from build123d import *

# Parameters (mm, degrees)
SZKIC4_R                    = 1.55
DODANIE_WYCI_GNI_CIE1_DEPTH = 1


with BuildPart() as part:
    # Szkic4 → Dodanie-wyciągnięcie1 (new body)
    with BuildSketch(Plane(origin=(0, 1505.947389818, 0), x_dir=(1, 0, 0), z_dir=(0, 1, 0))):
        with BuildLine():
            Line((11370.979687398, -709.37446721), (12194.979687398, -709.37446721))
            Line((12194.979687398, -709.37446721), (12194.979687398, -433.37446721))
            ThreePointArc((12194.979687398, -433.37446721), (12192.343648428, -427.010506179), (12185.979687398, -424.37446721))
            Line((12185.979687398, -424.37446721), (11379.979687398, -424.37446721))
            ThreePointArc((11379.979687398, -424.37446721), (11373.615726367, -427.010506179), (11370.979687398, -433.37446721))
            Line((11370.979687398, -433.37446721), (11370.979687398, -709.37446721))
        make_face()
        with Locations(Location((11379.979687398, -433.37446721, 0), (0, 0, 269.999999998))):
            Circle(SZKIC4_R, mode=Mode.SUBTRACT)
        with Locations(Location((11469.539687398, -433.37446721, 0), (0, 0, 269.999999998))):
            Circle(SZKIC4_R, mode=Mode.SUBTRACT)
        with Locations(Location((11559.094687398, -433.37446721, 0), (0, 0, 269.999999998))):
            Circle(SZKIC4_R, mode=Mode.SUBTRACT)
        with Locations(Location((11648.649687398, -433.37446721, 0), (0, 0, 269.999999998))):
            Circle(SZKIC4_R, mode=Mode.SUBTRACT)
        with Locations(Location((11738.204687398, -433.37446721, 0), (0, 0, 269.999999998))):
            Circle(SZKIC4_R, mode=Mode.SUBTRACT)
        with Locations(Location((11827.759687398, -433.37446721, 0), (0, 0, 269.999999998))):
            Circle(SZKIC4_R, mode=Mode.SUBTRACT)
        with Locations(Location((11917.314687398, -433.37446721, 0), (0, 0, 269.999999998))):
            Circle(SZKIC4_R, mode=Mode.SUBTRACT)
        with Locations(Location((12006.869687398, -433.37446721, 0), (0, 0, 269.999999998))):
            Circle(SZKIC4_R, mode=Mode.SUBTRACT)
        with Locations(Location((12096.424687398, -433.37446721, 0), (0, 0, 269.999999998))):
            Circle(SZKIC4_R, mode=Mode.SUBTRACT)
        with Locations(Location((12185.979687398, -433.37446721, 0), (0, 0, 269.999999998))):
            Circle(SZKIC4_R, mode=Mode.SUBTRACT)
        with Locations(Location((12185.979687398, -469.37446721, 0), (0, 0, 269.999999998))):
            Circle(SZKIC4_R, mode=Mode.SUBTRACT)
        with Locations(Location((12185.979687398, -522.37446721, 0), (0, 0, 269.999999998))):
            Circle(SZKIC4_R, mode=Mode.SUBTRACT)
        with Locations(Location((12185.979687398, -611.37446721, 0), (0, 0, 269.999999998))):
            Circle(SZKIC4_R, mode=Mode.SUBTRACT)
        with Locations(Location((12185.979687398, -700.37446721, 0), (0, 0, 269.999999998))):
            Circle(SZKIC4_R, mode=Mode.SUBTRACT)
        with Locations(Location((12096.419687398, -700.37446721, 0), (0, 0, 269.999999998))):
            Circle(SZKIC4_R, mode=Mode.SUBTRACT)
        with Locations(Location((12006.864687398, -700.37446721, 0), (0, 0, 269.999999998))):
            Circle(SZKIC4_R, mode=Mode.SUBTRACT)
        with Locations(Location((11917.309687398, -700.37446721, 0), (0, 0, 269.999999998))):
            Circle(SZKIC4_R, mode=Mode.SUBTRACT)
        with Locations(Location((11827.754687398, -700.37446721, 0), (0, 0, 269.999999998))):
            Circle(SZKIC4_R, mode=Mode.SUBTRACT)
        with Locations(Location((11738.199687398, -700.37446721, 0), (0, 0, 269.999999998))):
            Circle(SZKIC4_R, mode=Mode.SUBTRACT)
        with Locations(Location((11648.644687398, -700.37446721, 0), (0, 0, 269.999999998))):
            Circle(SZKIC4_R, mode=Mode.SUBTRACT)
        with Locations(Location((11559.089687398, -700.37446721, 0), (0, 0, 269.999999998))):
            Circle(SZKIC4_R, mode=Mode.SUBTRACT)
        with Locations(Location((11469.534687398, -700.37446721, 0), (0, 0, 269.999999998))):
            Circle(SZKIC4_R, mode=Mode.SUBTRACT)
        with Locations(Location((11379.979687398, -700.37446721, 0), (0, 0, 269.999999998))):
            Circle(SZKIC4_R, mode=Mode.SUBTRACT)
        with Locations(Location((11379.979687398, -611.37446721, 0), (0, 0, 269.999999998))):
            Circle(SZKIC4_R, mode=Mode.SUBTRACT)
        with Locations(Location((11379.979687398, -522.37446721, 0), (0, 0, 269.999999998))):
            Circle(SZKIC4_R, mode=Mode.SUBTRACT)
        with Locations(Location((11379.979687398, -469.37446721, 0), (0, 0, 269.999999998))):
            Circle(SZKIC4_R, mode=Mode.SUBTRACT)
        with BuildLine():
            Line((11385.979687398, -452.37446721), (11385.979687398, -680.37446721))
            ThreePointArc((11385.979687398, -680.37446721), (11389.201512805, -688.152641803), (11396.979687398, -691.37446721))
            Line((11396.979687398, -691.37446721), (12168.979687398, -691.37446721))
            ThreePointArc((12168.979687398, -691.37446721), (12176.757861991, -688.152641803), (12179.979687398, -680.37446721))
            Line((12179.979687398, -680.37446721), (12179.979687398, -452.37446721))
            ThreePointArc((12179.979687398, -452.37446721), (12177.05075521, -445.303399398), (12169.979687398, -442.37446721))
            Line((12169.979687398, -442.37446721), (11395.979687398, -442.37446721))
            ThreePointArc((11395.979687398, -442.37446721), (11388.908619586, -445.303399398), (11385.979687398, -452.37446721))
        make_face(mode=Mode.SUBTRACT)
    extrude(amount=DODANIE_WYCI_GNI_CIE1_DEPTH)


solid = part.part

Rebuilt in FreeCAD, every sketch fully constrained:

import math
import FreeCAD as App
import Part
import Sketcher

V = App.Vector

doc = App.newDocument("Part")
body = doc.addObject("PartDesign::Body", "Body")

sketch1 = body.newObject("Sketcher::SketchObject", "Sketch")
sketch1.AttachmentSupport = (doc.getObject("XZ_Plane"), [""])
sketch1.MapMode = "FlatFace"
sketch1.AttachmentOffset = App.Placement(V(0, 0, -1505.94739), App.Rotation())
sketch1.addGeometry([
    Part.LineSegment(V(11371, 709.4, 0), V(12195, 709.4, 0)),
    Part.LineSegment(V(12195, 709.4, 0), V(12195, 433.4, 0)),
    Part.ArcOfCircle(Part.Circle(V(12186, 433.4, 0), V(0, 0, 1), 9), math.radians(-90), math.radians(0)),
    Part.LineSegment(V(12186, 424.4, 0), V(11380, 424.4, 0)),
    Part.ArcOfCircle(Part.Circle(V(11380, 433.4, 0), V(0, 0, 1), 9), math.radians(180), math.radians(270)),
    Part.LineSegment(V(11371, 433.4, 0), V(11371, 709.4, 0)),
    Part.Circle(V(11380, 700.4, 0), V(0, 0, 1), 1.6),
    Part.Circle(V(11469.5, 700.4, 0), V(0, 0, 1), 1.6),
    Part.Circle(V(11559.1, 700.4, 0), V(0, 0, 1), 1.6),
    Part.Circle(V(11648.6, 700.4, 0), V(0, 0, 1), 1.6),
    Part.Circle(V(11738.2, 700.4, 0), V(0, 0, 1), 1.6),
    Part.Circle(V(11380, 611.4, 0), V(0, 0, 1), 1.6),
    Part.Circle(V(11827.8, 700.4, 0), V(0, 0, 1), 1.6),
    Part.Circle(V(11917.3, 700.4, 0), V(0, 0, 1), 1.6),
    Part.Circle(V(12006.9, 700.4, 0), V(0, 0, 1), 1.6),
    Part.Circle(V(12096.4, 700.4, 0), V(0, 0, 1), 1.6),
    Part.Circle(V(12186, 700.4, 0), V(0, 0, 1), 1.6),
    Part.Circle(V(12186, 611.4, 0), V(0, 0, 1), 1.6),
    Part.Circle(V(11380, 522.4, 0), V(0, 0, 1), 1.6),
    Part.Circle(V(11380, 469.4, 0), V(0, 0, 1), 1.6),
    Part.Circle(V(11380, 433.4, 0), V(0, 0, 1), 1.6),
    Part.Circle(V(11469.5, 433.4, 0), V(0, 0, 1), 1.6),
    Part.Circle(V(11559.1, 433.4, 0), V(0, 0, 1), 1.6),
    Part.Circle(V(11648.6, 433.4, 0), V(0, 0, 1), 1.6),
    Part.Circle(V(11738.2, 433.4, 0), V(0, 0, 1), 1.6),
    Part.LineSegment(V(11386, 680.4, 0), V(11386, 452.4, 0)),
    Part.ArcOfCircle(Part.Circle(V(11396, 452.4, 0), V(0, 0, 1), 10), math.radians(180), math.radians(270)),
    Part.LineSegment(V(11396, 442.4, 0), V(12170, 442.4, 0)),
    Part.ArcOfCircle(Part.Circle(V(12170, 452.4, 0), V(0, 0, 1), 10), math.radians(-90), math.radians(0)),
    Part.LineSegment(V(12180, 452.4, 0), V(12180, 680.4, 0)),
    Part.ArcOfCircle(Part.Circle(V(12169, 680.4, 0), V(0, 0, 1), 11), math.radians(0), math.radians(90)),
    Part.LineSegment(V(12169, 691.4, 0), V(11397, 691.4, 0)),
    Part.ArcOfCircle(Part.Circle(V(11397, 680.4, 0), V(0, 0, 1), 11), math.radians(90), math.radians(180)),
    Part.Circle(V(12186, 522.4, 0), V(0, 0, 1), 1.6),
    Part.Circle(V(11827.8, 433.4, 0), V(0, 0, 1), 1.6),
    Part.Circle(V(11917.3, 433.4, 0), V(0, 0, 1), 1.6),
    Part.Circle(V(12186, 469.4, 0), V(0, 0, 1), 1.6),
    Part.Circle(V(12006.9, 433.4, 0), V(0, 0, 1), 1.6),
    Part.Circle(V(12096.4, 433.4, 0), V(0, 0, 1), 1.6),
    Part.Circle(V(12186, 433.4, 0), V(0, 0, 1), 1.6),
], False)
sketch1.addConstraint([
    Sketcher.Constraint("Coincident", 0, 2, 1, 1),
    Sketcher.Constraint("Tangent", 1, 2, 2, 2),
    Sketcher.Constraint("Tangent", 2, 1, 3, 1),
    Sketcher.Constraint("Tangent", 3, 2, 4, 2),
    Sketcher.Constraint("Tangent", 4, 1, 5, 1),
    Sketcher.Constraint("Coincident", 5, 2, 0, 1),
    Sketcher.Constraint("Tangent", 25, 2, 26, 1),
    Sketcher.Constraint("Tangent", 26, 2, 27, 1),
    Sketcher.Constraint("Tangent", 27, 2, 28, 1),
    Sketcher.Constraint("Tangent", 28, 2, 29, 1),
    Sketcher.Constraint("Tangent", 29, 2, 30, 1),
    Sketcher.Constraint("Tangent", 30, 2, 31, 1),
    Sketcher.Constraint("Tangent", 31, 2, 32, 1),
    Sketcher.Constraint("Tangent", 32, 2, 25, 1),
    Sketcher.Constraint("Horizontal", 0),
    Sketcher.Constraint("Vertical", 1),
    Sketcher.Constraint("Horizontal", 3),
    Sketcher.Constraint("Vertical", 5),
    Sketcher.Constraint("Vertical", 25),
    Sketcher.Constraint("Horizontal", 27),
    Sketcher.Constraint("Vertical", 29),
    Sketcher.Constraint("Horizontal", 31),
    Sketcher.Constraint("Coincident", 20, 3, 4, 3),
    Sketcher.Constraint("Coincident", 39, 3, 2, 3),
    Sketcher.Constraint("Equal", 2, 4),
    Sketcher.Constraint("Equal", 6, 7),
    Sketcher.Constraint("Equal", 7, 8),
    Sketcher.Constraint("Equal", 8, 9),
    Sketcher.Constraint("Equal", 9, 10),
    Sketcher.Constraint("Equal", 10, 11),
    Sketcher.Constraint("Equal", 11, 12),
    Sketcher.Constraint("Equal", 12, 13),
    Sketcher.Constraint("Equal", 13, 14),
    Sketcher.Constraint("Equal", 14, 15),
    Sketcher.Constraint("Equal", 15, 16),
    Sketcher.Constraint("Equal", 16, 17),
    Sketcher.Constraint("Equal", 17, 18),
    Sketcher.Constraint("Equal", 18, 19),
    Sketcher.Constraint("Equal", 19, 20),
    Sketcher.Constraint("Equal", 20, 21),
    Sketcher.Constraint("Equal", 21, 22),
    Sketcher.Constraint("Equal", 22, 23),
    Sketcher.Constraint("Equal", 23, 24),
    Sketcher.Constraint("Equal", 26, 28),
    Sketcher.Constraint("Equal", 30, 32),
    Sketcher.Constraint("Equal", 24, 33),
    Sketcher.Constraint("Equal", 33, 34),
    Sketcher.Constraint("Equal", 34, 35),
    Sketcher.Constraint("Equal", 35, 36),
    Sketcher.Constraint("Equal", 36, 37),
    Sketcher.Constraint("Equal", 37, 38),
    Sketcher.Constraint("Equal", 38, 39),
    Sketcher.Constraint("Horizontal", 6, 3, 7, 3),
    Sketcher.Constraint("Horizontal", 7, 3, 8, 3),
    Sketcher.Constraint("Horizontal", 8, 3, 9, 3),
    Sketcher.Constraint("Horizontal", 9, 3, 10, 3),
    Sketcher.Constraint("Horizontal", 10, 3, 12, 3),
    Sketcher.Constraint("Horizontal", 12, 3, 13, 3),
    Sketcher.Constraint("Horizontal", 13, 3, 14, 3),
    Sketcher.Constraint("Horizontal", 14, 3, 15, 3),
    Sketcher.Constraint("Horizontal", 15, 3, 16, 3),
    Sketcher.Constraint("Horizontal", 11, 3, 17, 3),
    Sketcher.Constraint("Horizontal", 20, 3, 21, 3),
    Sketcher.Constraint("Horizontal", 21, 3, 22, 3),
    Sketcher.Constraint("Horizontal", 22, 3, 23, 3),
    Sketcher.Constraint("Horizontal", 23, 3, 24, 3),
    Sketcher.Constraint("Horizontal", 18, 3, 33, 3),
    Sketcher.Constraint("Horizontal", 24, 3, 34, 3),
    Sketcher.Constraint("Horizontal", 34, 3, 35, 3),
    Sketcher.Constraint("Horizontal", 19, 3, 36, 3),
    Sketcher.Constraint("Horizontal", 35, 3, 37, 3),
    Sketcher.Constraint("Horizontal", 37, 3, 38, 3),
    Sketcher.Constraint("Vertical", 4, 3, 6, 3),
    Sketcher.Constraint("Vertical", 6, 3, 11, 3),
    Sketcher.Constraint("Vertical", 2, 3, 16, 3),
    Sketcher.Constraint("Vertical", 16, 3, 17, 3),
    Sketcher.Constraint("Vertical", 11, 3, 18, 3),
    Sketcher.Constraint("Vertical", 18, 3, 19, 3),
    Sketcher.Constraint("Vertical", 17, 3, 33, 3),
    Sketcher.Constraint("Vertical", 33, 3, 36, 3),
    Sketcher.Constraint("Radius", 2, 9.0),
    Sketcher.Constraint("Radius", 26, 10.0),
    Sketcher.Constraint("Radius", 30, 11.0),
    Sketcher.Constraint("Diameter", 6, 3.1),
    Sketcher.Constraint("DistanceX", 0, 1, 0, 2, 824.0),
    Sketcher.Constraint("DistanceX", 27, 1, 27, 2, 774.0),
    Sketcher.Constraint("DistanceY", 1, 2, 1, 1, 276.0),
    Sketcher.Constraint("DistanceY", 25, 2, 25, 1, 228.0),
    Sketcher.Constraint("DistanceY", 4, 3, 6, 3, 267.0),
    Sketcher.Constraint("DistanceY", 11, 3, 6, 3, 89.0),
    Sketcher.Constraint("DistanceY", 18, 3, 11, 3, 89.0),
    Sketcher.Constraint("DistanceY", 4, 3, 19, 3, 36.0),
    Sketcher.Constraint("DistanceX", 19, 3, 26, 3, 16.0),
    Sketcher.Constraint("DistanceY", 26, 3, 19, 3, 17.0),
    Sketcher.Constraint("DistanceX", 6, 3, 8, 3, 179.11),
    Sketcher.Constraint("DistanceX", 7, 3, 9, 3, 179.11),
    Sketcher.Constraint("DistanceX", 8, 3, 10, 3, 179.11),
    Sketcher.Constraint("DistanceX", 9, 3, 12, 3, 179.11),
    Sketcher.Constraint("DistanceX", 10, 3, 13, 3, 179.11),
    Sketcher.Constraint("DistanceX", 12, 3, 14, 3, 179.11),
    Sketcher.Constraint("DistanceX", 13, 3, 15, 3, 179.11),
    Sketcher.Constraint("DistanceX", 20, 3, 21, 3, 89.56),
    Sketcher.Constraint("DistanceX", 21, 3, 23, 3, 179.11),
    Sketcher.Constraint("DistanceX", 22, 3, 24, 3, 179.11),
    Sketcher.Constraint("DistanceX", 24, 3, 12, 3, 89.55),
    Sketcher.Constraint("DistanceX", 23, 3, 34, 3, 179.11),
    Sketcher.Constraint("DistanceX", 24, 3, 35, 3, 179.11),
    Sketcher.Constraint("DistanceX", 37, 3, 28, 3, 163.11),
    Sketcher.Constraint("DistanceX", 6, 3, 7, 3, 89.555),
    Sketcher.Constraint("DistanceX", 38, 3, 28, 3, 73.555),
    Sketcher.Constraint("DistanceX", -1, 1, 2, 3, 12185.979687),
    Sketcher.Constraint("DistanceY", -1, 1, 2, 3, 433.374467),
])
pad1 = body.newObject("PartDesign::Pad", "Pad")
pad1.Profile = sketch1
pad1.Length = 1
pad1.Reversed = True

doc.recompute()
